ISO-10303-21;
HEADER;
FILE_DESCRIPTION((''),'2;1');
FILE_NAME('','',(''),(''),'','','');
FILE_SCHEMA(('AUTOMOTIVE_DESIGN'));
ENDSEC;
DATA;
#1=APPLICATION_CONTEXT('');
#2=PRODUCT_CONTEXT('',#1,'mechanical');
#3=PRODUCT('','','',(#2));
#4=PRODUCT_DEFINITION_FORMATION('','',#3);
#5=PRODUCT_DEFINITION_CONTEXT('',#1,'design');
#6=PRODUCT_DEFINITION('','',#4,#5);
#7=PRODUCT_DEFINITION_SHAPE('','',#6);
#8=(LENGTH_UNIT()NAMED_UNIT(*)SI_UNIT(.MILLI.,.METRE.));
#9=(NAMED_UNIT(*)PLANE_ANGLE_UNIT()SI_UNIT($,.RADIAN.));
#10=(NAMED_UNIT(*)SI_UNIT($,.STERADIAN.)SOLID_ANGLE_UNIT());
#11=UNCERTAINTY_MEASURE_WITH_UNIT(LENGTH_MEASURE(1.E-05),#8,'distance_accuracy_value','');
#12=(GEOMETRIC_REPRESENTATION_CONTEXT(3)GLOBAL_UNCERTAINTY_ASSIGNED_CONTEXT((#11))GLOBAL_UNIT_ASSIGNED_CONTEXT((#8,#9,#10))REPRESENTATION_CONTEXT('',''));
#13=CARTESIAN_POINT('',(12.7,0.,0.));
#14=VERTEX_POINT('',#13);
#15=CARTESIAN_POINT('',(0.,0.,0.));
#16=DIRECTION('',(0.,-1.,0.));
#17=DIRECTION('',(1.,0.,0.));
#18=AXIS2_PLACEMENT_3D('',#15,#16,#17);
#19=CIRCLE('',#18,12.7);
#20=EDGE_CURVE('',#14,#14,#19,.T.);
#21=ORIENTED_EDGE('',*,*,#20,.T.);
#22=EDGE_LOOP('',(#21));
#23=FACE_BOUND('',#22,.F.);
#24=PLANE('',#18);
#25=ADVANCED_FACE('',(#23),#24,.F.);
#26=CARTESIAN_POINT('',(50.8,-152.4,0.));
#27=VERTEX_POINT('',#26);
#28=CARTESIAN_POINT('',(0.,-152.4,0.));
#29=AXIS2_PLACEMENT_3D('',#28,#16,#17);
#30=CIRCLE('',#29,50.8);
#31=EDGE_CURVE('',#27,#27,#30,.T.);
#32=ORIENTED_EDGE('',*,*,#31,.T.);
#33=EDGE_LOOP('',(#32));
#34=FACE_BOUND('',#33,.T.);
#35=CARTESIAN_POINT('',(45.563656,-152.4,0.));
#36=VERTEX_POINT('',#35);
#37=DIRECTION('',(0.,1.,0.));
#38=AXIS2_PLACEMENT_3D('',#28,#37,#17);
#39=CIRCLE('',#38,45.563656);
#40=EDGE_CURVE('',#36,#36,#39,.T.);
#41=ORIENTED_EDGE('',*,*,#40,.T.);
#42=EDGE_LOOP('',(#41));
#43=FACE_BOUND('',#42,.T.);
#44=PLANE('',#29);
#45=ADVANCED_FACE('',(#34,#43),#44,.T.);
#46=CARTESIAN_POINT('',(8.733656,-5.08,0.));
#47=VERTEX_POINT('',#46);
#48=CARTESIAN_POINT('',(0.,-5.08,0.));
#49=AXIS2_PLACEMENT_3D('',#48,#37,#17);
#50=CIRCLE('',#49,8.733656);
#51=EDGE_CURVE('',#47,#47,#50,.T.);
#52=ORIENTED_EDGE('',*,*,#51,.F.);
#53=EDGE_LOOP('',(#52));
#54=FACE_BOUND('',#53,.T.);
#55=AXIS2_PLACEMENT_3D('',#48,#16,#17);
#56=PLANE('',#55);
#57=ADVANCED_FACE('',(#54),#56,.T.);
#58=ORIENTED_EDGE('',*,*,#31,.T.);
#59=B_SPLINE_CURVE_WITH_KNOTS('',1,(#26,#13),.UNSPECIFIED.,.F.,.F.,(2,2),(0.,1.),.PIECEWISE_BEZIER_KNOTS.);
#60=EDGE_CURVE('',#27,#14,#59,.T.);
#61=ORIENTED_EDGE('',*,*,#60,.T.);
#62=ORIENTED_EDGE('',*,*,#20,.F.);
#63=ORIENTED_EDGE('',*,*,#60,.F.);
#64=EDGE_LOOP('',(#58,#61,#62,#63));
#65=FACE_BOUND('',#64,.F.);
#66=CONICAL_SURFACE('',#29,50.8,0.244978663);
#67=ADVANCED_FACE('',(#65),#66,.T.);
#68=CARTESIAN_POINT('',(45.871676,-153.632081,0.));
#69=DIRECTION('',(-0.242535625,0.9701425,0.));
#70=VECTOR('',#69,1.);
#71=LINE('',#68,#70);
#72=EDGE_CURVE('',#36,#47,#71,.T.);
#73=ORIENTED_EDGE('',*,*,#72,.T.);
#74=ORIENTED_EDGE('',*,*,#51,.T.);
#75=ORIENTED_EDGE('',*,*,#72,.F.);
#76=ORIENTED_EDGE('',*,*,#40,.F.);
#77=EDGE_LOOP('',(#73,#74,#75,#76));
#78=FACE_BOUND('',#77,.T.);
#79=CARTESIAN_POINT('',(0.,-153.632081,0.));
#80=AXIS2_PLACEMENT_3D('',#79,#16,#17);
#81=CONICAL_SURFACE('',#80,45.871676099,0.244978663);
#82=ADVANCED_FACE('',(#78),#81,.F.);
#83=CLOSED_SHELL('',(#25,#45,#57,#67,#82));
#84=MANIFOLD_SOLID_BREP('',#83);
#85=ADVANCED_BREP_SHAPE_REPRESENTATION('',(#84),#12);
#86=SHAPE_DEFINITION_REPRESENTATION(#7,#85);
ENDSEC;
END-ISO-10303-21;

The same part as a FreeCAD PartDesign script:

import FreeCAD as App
import Part
import Sketcher
from FreeCAD import Vector
Q = App.Units.Quantity


def faces_at(feature, points):
    """Names of the faces that lie closest to the given points."""
    faces = feature.Shape.Faces
    near = lambda p: min(range(len(faces)), key=lambda i: faces[i].distToShape(Part.Vertex(*p))[0])
    return sorted({f"Face{near(p) + 1}" for p in points})

doc = App.newDocument("Part")
body = doc.addObject("PartDesign::Body", "Body")

sketch1 = doc.addObject("Sketcher::SketchObject", "Sketch")
body.addObject(sketch1)
sketch1.AttachmentSupport = (doc.XZ_Plane, [""])
sketch1.MapMode = "FlatFace"
sketch1.AttachmentOffset = App.Placement(Vector(0, 0, 6 * 25.4), App.Rotation())
sketch1.addGeometry(Part.Circle(Vector(0, 0, 0), Vector(0, 0, 1), 51), False)
sketch1.addConstraint([
    Sketcher.Constraint("Coincident", 0, 3, -1, 1),
    Sketcher.Constraint("Diameter", 0, Q("4 in")),
])

sketch2 = doc.addObject("Sketcher::SketchObject", "Sketch001")
body.addObject(sketch2)
sketch2.AttachmentSupport = (doc.XZ_Plane, [""])
sketch2.MapMode = "FlatFace"
sketch2.addGeometry(Part.Circle(Vector(0, 0, 0), Vector(0, 0, 1), 13), False)
sketch2.addConstraint([
    Sketcher.Constraint("Coincident", 0, 3, -1, 1),
    Sketcher.Constraint("Diameter", 0, Q("1 in")),
])

additiveloft = doc.addObject("PartDesign::AdditiveLoft", "AdditiveLoft")
body.addObject(additiveloft)
additiveloft.Profile = sketch1
additiveloft.Sections = [sketch2]
doc.recompute()

thickness = doc.addObject("PartDesign::Thickness", "Thickness")
body.addObject(thickness)
thickness.Base = (additiveloft, faces_at(additiveloft, [(0, -152.4, 0)]))
thickness.Value = Q("0.2 in")
thickness.Reversed = True
thickness.Join = "Intersection"

doc.recompute()
